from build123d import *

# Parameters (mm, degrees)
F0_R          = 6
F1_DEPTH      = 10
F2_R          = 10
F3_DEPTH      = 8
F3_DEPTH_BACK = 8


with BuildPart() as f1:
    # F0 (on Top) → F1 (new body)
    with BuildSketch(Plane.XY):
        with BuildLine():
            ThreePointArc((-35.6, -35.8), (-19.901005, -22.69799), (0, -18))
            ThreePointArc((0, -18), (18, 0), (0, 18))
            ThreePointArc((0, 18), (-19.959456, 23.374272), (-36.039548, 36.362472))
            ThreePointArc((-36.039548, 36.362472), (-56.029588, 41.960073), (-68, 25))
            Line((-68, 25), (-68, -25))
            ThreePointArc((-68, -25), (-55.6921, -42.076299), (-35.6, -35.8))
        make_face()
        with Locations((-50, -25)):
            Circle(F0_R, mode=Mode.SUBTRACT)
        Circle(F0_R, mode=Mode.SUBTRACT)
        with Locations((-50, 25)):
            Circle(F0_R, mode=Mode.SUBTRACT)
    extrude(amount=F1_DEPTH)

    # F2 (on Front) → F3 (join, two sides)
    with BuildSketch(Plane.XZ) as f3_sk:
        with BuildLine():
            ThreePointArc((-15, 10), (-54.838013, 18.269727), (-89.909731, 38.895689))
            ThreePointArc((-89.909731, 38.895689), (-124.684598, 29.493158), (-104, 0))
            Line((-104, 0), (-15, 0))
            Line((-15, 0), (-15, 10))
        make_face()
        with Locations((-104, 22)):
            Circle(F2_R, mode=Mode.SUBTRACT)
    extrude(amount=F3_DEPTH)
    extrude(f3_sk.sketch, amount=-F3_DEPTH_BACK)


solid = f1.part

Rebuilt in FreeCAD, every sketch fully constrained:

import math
import FreeCAD as App
import Part
import Sketcher

V = App.Vector
Q = App.Units.Quantity

doc = App.newDocument("Part")
body = doc.addObject("PartDesign::Body", "Body")

sketch1 = body.newObject("Sketcher::SketchObject", "Sketch")
sketch1.AttachmentSupport = (doc.getObject("XY_Plane"), [""])
sketch1.MapMode = "FlatFace"
sketch1.addGeometry([
    Part.ArcOfCircle(Part.Circle(V(0, -62, 0), V(0, 0, 1), 44), math.radians(90), math.radians(143)),
    Part.ArcOfCircle(Part.Circle(V(0, 0, 0), V(0, 0, 1), 18), math.radians(-90), math.radians(90)),
    Part.ArcOfCircle(Part.Circle(V(3, 68, 0), V(0, 0, 1), 50), math.radians(-141), math.radians(-93)),
    Part.ArcOfCircle(Part.Circle(V(-50, 25, 0), V(0, 0, 1), 18), math.radians(39), math.radians(180)),
    Part.LineSegment(V(-68, 25, 0), V(-68, -25, 0)),
    Part.ArcOfCircle(Part.Circle(V(-50, -25, 0), V(0, 0, 1), 18), math.radians(-180), math.radians(-37)),
    Part.Circle(V(-50, -25, 0), V(0, 0, 1), 6),
    Part.Circle(V(-50, 25, 0), V(0, 0, 1), 6),
    Part.Circle(V(0, 0, 0), V(0, 0, 1), 6),
], False)
sketch1.addConstraint([
    Sketcher.Constraint("Tangent", 0, 1, 1, 1),
    Sketcher.Constraint("Coincident", 1, 2, 2, 2),
    Sketcher.Constraint("Tangent", 2, 1, 3, 1),
    Sketcher.Constraint("Tangent", 3, 2, 4, 1),
    Sketcher.Constraint("Tangent", 4, 2, 5, 1),
    Sketcher.Constraint("Tangent", 5, 2, 0, 2),
    Sketcher.Constraint("Vertical", 4),
    Sketcher.Constraint("Coincident", 1, 3, -1, 1),
    Sketcher.Constraint("Coincident", 8, 3, -1, 1),
    Sketcher.Constraint("Coincident", 6, 3, 5, 3),
    Sketcher.Constraint("Coincident", 7, 3, 3, 3),
    Sketcher.Constraint("Equal", 1, 3),
    Sketcher.Constraint("Equal", 3, 5),
    Sketcher.Constraint("Equal", 6, 7),
    Sketcher.Constraint("Equal", 7, 8),
    Sketcher.Constraint("PointOnObject", 0, 3, -2),
    Sketcher.Constraint("PointOnObject", 1, 2, -2),
    Sketcher.Constraint("Diameter", 6, Q("12 mm")),
    Sketcher.Constraint("Radius", 1, Q("18 mm")),
    Sketcher.Constraint("Radius", 2, Q("49.999999 mm")),
    Sketcher.Constraint("Radius", 0, Q("44.5 mm")),
    Sketcher.Constraint("DistanceY", 4, 2, 4, 1, Q("50 mm")),
    Sketcher.Constraint("DistanceX", 3, 3, -1, 1, Q("50 mm")),
])
pad1 = body.newObject("PartDesign::Pad", "Pad")
pad1.Profile = sketch1
pad1.Length = 10

sketch2 = body.newObject("Sketcher::SketchObject", "Sketch001")
sketch2.AttachmentSupport = (doc.getObject("XZ_Plane"), [""])
sketch2.MapMode = "FlatFace"
sketch2.addGeometry([
    Part.ArcOfCircle(Part.Circle(V(-10, 135, 0), V(0, 0, 1), 125), math.radians(-130), math.radians(-92)),
    Part.ArcOfCircle(Part.Circle(V(-104, 22, 0), V(0, 0, 1), 22), math.radians(50), math.radians(270)),
    Part.LineSegment(V(-104, 0, 0), V(-15, 0, 0)),
    Part.LineSegment(V(-15, 0, 0), V(-15, 10, 0)),
    Part.Circle(V(-104, 22, 0), V(0, 0, 1), 10),
], False)
sketch2.addConstraint([
    Sketcher.Constraint("Tangent", 0, 1, 1, 1),
    Sketcher.Constraint("Tangent", 1, 2, 2, 1),
    Sketcher.Constraint("Coincident", 2, 2, 3, 1),
    Sketcher.Constraint("Coincident", 3, 2, 0, 2),
    Sketcher.Constraint("Horizontal", 2),
    Sketcher.Constraint("Vertical", 3),
    Sketcher.Constraint("Coincident", 4, 3, 1, 3),
    Sketcher.Constraint("PointOnObject", 1, 2, -1),
    Sketcher.Constraint("Diameter", 4, Q("20 mm")),
    Sketcher.Constraint("Radius", 1, Q("22 mm")),
    Sketcher.Constraint("DistanceX", 2, 1, 2, 2, Q("89 mm")),
    Sketcher.Constraint("DistanceY", 3, 1, 3, 2, Q("10 mm")),
    Sketcher.Constraint("DistanceX", 1, 3, -1, 1, Q("104 mm")),
    Sketcher.Constraint("Radius", 0, Q("125.000012 mm")),
])
pad2 = body.newObject("PartDesign::Pad", "Pad001")
pad2.Profile = sketch2
pad2.Type = "TwoLengths"
pad2.Length = 8
pad2.Length2 = 8

doc.recompute()
